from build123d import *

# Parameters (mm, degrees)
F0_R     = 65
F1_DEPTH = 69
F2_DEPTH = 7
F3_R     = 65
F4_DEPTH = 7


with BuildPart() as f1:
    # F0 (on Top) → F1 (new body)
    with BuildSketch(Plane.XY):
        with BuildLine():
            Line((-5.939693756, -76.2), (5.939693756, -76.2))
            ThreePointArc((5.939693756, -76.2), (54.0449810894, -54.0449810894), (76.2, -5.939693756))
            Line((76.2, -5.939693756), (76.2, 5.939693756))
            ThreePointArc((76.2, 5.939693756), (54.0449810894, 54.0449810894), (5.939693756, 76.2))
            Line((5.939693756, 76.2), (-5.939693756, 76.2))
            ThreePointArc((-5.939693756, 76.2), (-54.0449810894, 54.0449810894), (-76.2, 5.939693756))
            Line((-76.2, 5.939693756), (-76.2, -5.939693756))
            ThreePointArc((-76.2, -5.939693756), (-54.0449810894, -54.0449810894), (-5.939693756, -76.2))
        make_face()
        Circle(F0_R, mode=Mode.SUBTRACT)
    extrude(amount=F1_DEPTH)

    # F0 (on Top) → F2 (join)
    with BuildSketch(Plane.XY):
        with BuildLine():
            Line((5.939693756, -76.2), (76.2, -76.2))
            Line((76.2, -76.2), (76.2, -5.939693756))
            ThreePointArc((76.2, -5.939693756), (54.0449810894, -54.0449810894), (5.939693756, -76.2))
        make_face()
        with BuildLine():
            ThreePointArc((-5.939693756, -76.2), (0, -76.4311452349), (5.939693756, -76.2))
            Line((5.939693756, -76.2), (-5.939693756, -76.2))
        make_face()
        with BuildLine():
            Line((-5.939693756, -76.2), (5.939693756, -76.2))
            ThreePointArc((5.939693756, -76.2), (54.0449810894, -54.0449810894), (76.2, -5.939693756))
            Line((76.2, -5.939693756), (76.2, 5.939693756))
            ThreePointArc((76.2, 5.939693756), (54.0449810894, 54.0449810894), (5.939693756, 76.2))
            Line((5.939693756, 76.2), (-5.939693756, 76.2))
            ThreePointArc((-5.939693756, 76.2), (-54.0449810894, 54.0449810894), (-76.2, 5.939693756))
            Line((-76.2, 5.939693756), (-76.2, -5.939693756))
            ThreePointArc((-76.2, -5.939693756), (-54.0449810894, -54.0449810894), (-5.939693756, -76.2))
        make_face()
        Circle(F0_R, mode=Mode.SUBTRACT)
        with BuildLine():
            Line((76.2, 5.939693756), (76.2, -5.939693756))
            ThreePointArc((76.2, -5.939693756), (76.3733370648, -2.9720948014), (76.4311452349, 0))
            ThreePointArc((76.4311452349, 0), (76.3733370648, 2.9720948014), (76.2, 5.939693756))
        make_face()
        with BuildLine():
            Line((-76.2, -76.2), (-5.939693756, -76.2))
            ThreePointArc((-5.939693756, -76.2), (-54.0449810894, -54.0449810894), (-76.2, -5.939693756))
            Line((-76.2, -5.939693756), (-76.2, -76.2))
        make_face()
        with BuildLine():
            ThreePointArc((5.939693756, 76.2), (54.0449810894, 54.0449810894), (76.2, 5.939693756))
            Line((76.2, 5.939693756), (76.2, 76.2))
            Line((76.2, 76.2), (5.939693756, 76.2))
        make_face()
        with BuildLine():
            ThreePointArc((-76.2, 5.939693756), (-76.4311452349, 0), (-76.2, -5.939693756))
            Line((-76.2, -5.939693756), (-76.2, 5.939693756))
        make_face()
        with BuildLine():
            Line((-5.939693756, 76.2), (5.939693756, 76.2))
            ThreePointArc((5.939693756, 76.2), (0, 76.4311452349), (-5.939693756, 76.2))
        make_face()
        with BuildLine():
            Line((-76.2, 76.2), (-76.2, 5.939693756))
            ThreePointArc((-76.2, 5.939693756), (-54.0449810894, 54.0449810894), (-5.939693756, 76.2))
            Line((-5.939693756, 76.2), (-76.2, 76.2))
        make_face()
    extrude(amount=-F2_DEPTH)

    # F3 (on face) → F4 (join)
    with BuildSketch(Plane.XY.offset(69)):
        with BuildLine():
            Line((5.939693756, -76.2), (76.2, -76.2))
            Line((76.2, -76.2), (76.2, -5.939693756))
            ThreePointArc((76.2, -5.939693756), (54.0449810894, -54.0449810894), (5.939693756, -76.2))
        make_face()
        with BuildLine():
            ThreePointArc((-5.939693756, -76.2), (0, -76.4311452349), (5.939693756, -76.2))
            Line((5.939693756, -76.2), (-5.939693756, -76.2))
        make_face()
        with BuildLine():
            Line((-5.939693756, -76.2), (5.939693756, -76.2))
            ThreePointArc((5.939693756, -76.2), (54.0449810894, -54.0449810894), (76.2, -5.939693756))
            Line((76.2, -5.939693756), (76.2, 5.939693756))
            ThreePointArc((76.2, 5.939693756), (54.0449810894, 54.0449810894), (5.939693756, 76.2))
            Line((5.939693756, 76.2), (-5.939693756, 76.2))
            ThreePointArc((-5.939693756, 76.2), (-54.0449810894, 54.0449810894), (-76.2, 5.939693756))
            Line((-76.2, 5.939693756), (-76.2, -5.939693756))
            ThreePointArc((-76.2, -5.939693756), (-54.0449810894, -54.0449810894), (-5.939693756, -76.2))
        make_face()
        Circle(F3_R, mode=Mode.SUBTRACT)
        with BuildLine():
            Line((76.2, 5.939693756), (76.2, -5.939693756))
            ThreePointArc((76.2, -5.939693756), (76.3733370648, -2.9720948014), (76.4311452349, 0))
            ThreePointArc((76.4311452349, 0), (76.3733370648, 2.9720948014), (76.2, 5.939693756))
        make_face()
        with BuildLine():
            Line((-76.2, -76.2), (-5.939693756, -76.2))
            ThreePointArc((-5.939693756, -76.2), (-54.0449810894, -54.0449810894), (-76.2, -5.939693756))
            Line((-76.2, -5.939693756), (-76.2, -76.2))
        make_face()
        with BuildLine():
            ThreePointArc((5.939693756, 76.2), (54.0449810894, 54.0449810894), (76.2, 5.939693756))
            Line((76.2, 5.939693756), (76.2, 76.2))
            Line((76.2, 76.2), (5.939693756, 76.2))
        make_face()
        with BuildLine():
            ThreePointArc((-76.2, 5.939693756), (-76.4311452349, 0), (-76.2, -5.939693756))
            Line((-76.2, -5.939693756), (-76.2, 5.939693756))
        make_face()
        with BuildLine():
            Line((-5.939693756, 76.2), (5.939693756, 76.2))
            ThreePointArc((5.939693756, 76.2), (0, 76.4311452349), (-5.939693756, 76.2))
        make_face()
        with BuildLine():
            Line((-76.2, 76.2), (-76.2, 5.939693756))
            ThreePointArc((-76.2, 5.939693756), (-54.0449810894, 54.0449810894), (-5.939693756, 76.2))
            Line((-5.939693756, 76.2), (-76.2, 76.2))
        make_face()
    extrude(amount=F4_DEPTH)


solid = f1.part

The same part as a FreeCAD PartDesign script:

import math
import FreeCAD as App
import Part
import Sketcher

V = App.Vector
Q = App.Units.Quantity

doc = App.newDocument("Part")
params = doc.addObject("Spreadsheet::Sheet", "Params")
for row, (alias, value) in enumerate([
    ("sketch1_diameter", "130 mm"),
    ("pad1_length", "69 mm"),
    ("sketch2_diameter", "130 mm"),
    ("pad2_length", "7 mm"),
    ("sketch3_diameter", "130 mm"),
    ("pad3_length", "7 mm"),
], start=1):
    params.set(f"A{row}", alias)
    params.set(f"B{row}", "=" + value)
    params.setAlias(f"B{row}", alias)

body = doc.addObject("PartDesign::Body", "Body")

# Sketch on XY plane
sketch1 = body.newObject("Sketcher::SketchObject", "Sketch")
sketch1.AttachmentSupport = (doc.getObject("XY_Plane"), [""])
sketch1.MapMode = "FlatFace"
sketch1.addGeometry([
    Part.LineSegment(V(-6, -76, 0), V(6, -76, 0)),  # 0
    Part.ArcOfCircle(Part.Circle(V(0, 0, 0), V(0, 0, 1), 76), math.radians(-86), math.radians(-4)),  # 1
    Part.LineSegment(V(76, -6, 0), V(76, 6, 0)),  # 2
    Part.ArcOfCircle(Part.Circle(V(0, 0, 0), V(0, 0, 1), 76), math.radians(4), math.radians(86)),  # 3
    Part.LineSegment(V(6, 76, 0), V(-6, 76, 0)),  # 4
    Part.ArcOfCircle(Part.Circle(V(0, 0, 0), V(0, 0, 1), 76), math.radians(94), math.radians(176)),  # 5
    Part.LineSegment(V(-76, 6, 0), V(-76, -6, 0)),  # 6
    Part.ArcOfCircle(Part.Circle(V(0, 0, 0), V(0, 0, 1), 76), math.radians(-176), math.radians(-94)),  # 7
    Part.Circle(V(0, 0, 0), V(0, 0, 1), 65),  # 8
], False)
sketch1.addConstraint([
    Sketcher.Constraint("Coincident", 0, 2, 1, 1),
    Sketcher.Constraint("Coincident", 1, 2, 2, 1),
    Sketcher.Constraint("Coincident", 2, 2, 3, 1),
    Sketcher.Constraint("Coincident", 3, 2, 4, 1),
    Sketcher.Constraint("Coincident", 4, 2, 5, 1),
    Sketcher.Constraint("Coincident", 5, 2, 6, 1),
    Sketcher.Constraint("Coincident", 6, 2, 7, 1),
    Sketcher.Constraint("Coincident", 7, 2, 0, 1),
    Sketcher.Constraint("Horizontal", 0),
    Sketcher.Constraint("Vertical", 2),
    Sketcher.Constraint("Horizontal", 4),
    Sketcher.Constraint("Vertical", 6),
    Sketcher.Constraint("Coincident", 1, 3, -1, 1),
    Sketcher.Constraint("Coincident", 3, 3, -1, 1),
    Sketcher.Constraint("Coincident", 5, 3, -1, 1),
    Sketcher.Constraint("Coincident", 7, 3, -1, 1),
    Sketcher.Constraint("Coincident", 8, 3, -1, 1),
    Sketcher.Constraint("Equal", 1, 3),
    Sketcher.Constraint("Equal", 3, 5),
    Sketcher.Constraint("Equal", 5, 7),
    Sketcher.Constraint("Horizontal", 2, 2, 5, 2),
    Sketcher.Constraint("Vertical", 0, 2, 3, 2),
    Sketcher.Constraint("Equal", 4, 2),
    Sketcher.Constraint("Diameter", 8, Q("130 mm")),
    Sketcher.Constraint("DistanceY", 0, 2, -1, 1, Q("76.2 mm")),
    Sketcher.Constraint("Radius", 1, Q("76.431145 mm")),
])
sketch1.setExpression("Constraints[23]", "Params.sketch1_diameter")
pad1 = body.newObject("PartDesign::Pad", "Pad")
pad1.Profile = sketch1
pad1.setExpression("Length", "Params.pad1_length")

# Sketch on XY plane
sketch2 = body.newObject("Sketcher::SketchObject", "Sketch001")
sketch2.AttachmentSupport = (doc.getObject("XY_Plane"), [""])
sketch2.MapMode = "FlatFace"
sketch2.addGeometry([
    Part.LineSegment(V(6, -76, 0), V(76, -76, 0)),  # 0
    Part.LineSegment(V(76, -76, 0), V(76, -6, 0)),  # 1
    Part.ArcOfCircle(Part.Circle(V(0, 0, 0), V(0, 0, 1), 76), math.radians(-4.46), math.radians(0)),  # 2
    Part.ArcOfCircle(Part.Circle(V(0, 0, 0), V(0, 0, 1), 76), math.radians(0), math.radians(4.46)),  # 3
    Part.LineSegment(V(76, 6, 0), V(76, 76, 0)),  # 4
    Part.LineSegment(V(76, 76, 0), V(6, 76, 0)),  # 5
    Part.ArcOfCircle(Part.Circle(V(0, 0, 0), V(0, 0, 1), 76), math.radians(85.54), math.radians(94.46)),  # 6
    Part.LineSegment(V(-6, 76, 0), V(-76, 76, 0)),  # 7
    Part.LineSegment(V(-76, 76, 0), V(-76, 6, 0)),  # 8
    Part.ArcOfCircle(Part.Circle(V(0, 0, 0), V(0, 0, 1), 76), math.radians(175.54), math.radians(184.46)),  # 9
    Part.LineSegment(V(-76, -6, 0), V(-76, -76, 0)),  # 10
    Part.LineSegment(V(-76, -76, 0), V(-6, -76, 0)),  # 11
    Part.ArcOfCircle(Part.Circle(V(0, 0, 0), V(0, 0, 1), 76), math.radians(-94.46), math.radians(-85.54)),  # 12
    Part.Circle(V(0, 0, 0), V(0, 0, 1), 65),  # 13
], False)
sketch2.addConstraint([
    Sketcher.Constraint("Coincident", 0, 2, 1, 1),
    Sketcher.Constraint("Coincident", 1, 2, 2, 1),
    Sketcher.Constraint("Tangent", 2, 2, 3, 1),
    Sketcher.Constraint("Coincident", 3, 2, 4, 1),
    Sketcher.Constraint("Coincident", 4, 2, 5, 1),
    Sketcher.Constraint("Coincident", 5, 2, 6, 1),
    Sketcher.Constraint("Coincident", 6, 2, 7, 1),
    Sketcher.Constraint("Coincident", 7, 2, 8, 1),
    Sketcher.Constraint("Coincident", 8, 2, 9, 1),
    Sketcher.Constraint("Coincident", 9, 2, 10, 1),
    Sketcher.Constraint("Coincident", 10, 2, 11, 1),
    Sketcher.Constraint("Coincident", 11, 2, 12, 1),
    Sketcher.Constraint("Coincident", 12, 2, 0, 1),
    Sketcher.Constraint("Horizontal", 0),
    Sketcher.Constraint("Vertical", 1),
    Sketcher.Constraint("Vertical", 4),
    Sketcher.Constraint("Horizontal", 5),
    Sketcher.Constraint("Horizontal", 7),
    Sketcher.Constraint("Vertical", 8),
    Sketcher.Constraint("Vertical", 10),
    Sketcher.Constraint("Horizontal", 11),
    Sketcher.Constraint("Coincident", 2, 3, -1, 1),
    Sketcher.Constraint("Coincident", 6, 3, -1, 1),
    Sketcher.Constraint("Coincident", 9, 3, -1, 1),
    Sketcher.Constraint("Coincident", 12, 3, -1, 1),
    Sketcher.Constraint("Coincident", 13, 3, -1, 1),
    Sketcher.Constraint("Equal", 2, 3),
    Sketcher.Constraint("Equal", 3, 6),
    Sketcher.Constraint("Equal", 6, 9),
    Sketcher.Constraint("Equal", 9, 12),
    Sketcher.Constraint("Symmetric", 0, 2, 7, 2, -1, 1),
    Sketcher.Constraint("Symmetric", 4, 2, 10, 2, -1, 1),
    Sketcher.Constraint("Symmetric", 4, 2, 7, 2, -2),
    Sketcher.Constraint("PointOnObject", 2, 2, -1),
    Sketcher.Constraint("Equal", 11, 1),
    Sketcher.Constraint("Diameter", 13, Q("130 mm")),
    Sketcher.Constraint("DistanceX", -1, 1, 0, 2, Q("76.2 mm")),
    Sketcher.Constraint("Radius", 2, Q("76.431145 mm")),
])
sketch2.setExpression("Constraints[35]", "Params.sketch2_diameter")
pad2 = body.newObject("PartDesign::Pad", "Pad001")
pad2.Profile = sketch2
pad2.setExpression("Length", "Params.pad2_length")
pad2.Reversed = True

# Sketch on XY plane
sketch3 = body.newObject("Sketcher::SketchObject", "Sketch002")
sketch3.AttachmentSupport = (doc.getObject("XY_Plane"), [""])
sketch3.MapMode = "FlatFace"
sketch3.AttachmentOffset = App.Placement(V(0, 0, 69), App.Rotation())
sketch3.addGeometry([
    Part.LineSegment(V(6, -76, 0), V(76, -76, 0)),  # 0
    Part.LineSegment(V(76, -76, 0), V(76, -6, 0)),  # 1
    Part.ArcOfCircle(Part.Circle(V(0, 0, 0), V(0, 0, 1), 76), math.radians(-4.46), math.radians(0)),  # 2
    Part.ArcOfCircle(Part.Circle(V(0, 0, 0), V(0, 0, 1), 76), math.radians(0), math.radians(4.46)),  # 3
    Part.LineSegment(V(76, 6, 0), V(76, 76, 0)),  # 4
    Part.LineSegment(V(76, 76, 0), V(6, 76, 0)),  # 5
    Part.ArcOfCircle(Part.Circle(V(0, 0, 0), V(0, 0, 1), 76), math.radians(85.54), math.radians(94.46)),  # 6
    Part.LineSegment(V(-6, 76, 0), V(-76, 76, 0)),  # 7
    Part.LineSegment(V(-76, 76, 0), V(-76, 6, 0)),  # 8
    Part.ArcOfCircle(Part.Circle(V(0, 0, 0), V(0, 0, 1), 76), math.radians(175.54), math.radians(184.46)),  # 9
    Part.LineSegment(V(-76, -6, 0), V(-76, -76, 0)),  # 10
    Part.LineSegment(V(-76, -76, 0), V(-6, -76, 0)),  # 11
    Part.ArcOfCircle(Part.Circle(V(0, 0, 0), V(0, 0, 1), 76), math.radians(-94.46), math.radians(-85.54)),  # 12
    Part.Circle(V(0, 0, 0), V(0, 0, 1), 65),  # 13
], False)
sketch3.addConstraint([
    Sketcher.Constraint("Coincident", 0, 2, 1, 1),
    Sketcher.Constraint("Coincident", 1, 2, 2, 1),
    Sketcher.Constraint("Tangent", 2, 2, 3, 1),
    Sketcher.Constraint("Coincident", 3, 2, 4, 1),
    Sketcher.Constraint("Coincident", 4, 2, 5, 1),
    Sketcher.Constraint("Coincident", 5, 2, 6, 1),
    Sketcher.Constraint("Coincident", 6, 2, 7, 1),
    Sketcher.Constraint("Coincident", 7, 2, 8, 1),
    Sketcher.Constraint("Coincident", 8, 2, 9, 1),
    Sketcher.Constraint("Coincident", 9, 2, 10, 1),
    Sketcher.Constraint("Coincident", 10, 2, 11, 1),
    Sketcher.Constraint("Coincident", 11, 2, 12, 1),
    Sketcher.Constraint("Coincident", 12, 2, 0, 1),
    Sketcher.Constraint("Horizontal", 0),
    Sketcher.Constraint("Vertical", 1),
    Sketcher.Constraint("Vertical", 4),
    Sketcher.Constraint("Horizontal", 5),
    Sketcher.Constraint("Horizontal", 7),
    Sketcher.Constraint("Vertical", 8),
    Sketcher.Constraint("Vertical", 10),
    Sketcher.Constraint("Horizontal", 11),
    Sketcher.Constraint("Coincident", 2, 3, -1, 1),
    Sketcher.Constraint("Coincident", 6, 3, -1, 1),
    Sketcher.Constraint("Coincident", 9, 3, -1, 1),
    Sketcher.Constraint("Coincident", 12, 3, -1, 1),
    Sketcher.Constraint("Coincident", 13, 3, -1, 1),
    Sketcher.Constraint("Equal", 2, 3),
    Sketcher.Constraint("Equal", 3, 6),
    Sketcher.Constraint("Equal", 6, 9),
    Sketcher.Constraint("Equal", 9, 12),
    Sketcher.Constraint("Symmetric", 0, 2, 7, 2, -1, 1),
    Sketcher.Constraint("Symmetric", 4, 2, 10, 2, -1, 1),
    Sketcher.Constraint("Symmetric", 4, 2, 7, 2, -2),
    Sketcher.Constraint("PointOnObject", 2, 2, -1),
    Sketcher.Constraint("Equal", 11, 1),
    Sketcher.Constraint("Diameter", 13, Q("130 mm")),
    Sketcher.Constraint("DistanceX", -1, 1, 0, 2, Q("76.2 mm")),
    Sketcher.Constraint("Radius", 2, Q("76.431145 mm")),
])
sketch3.setExpression("Constraints[35]", "Params.sketch3_diameter")
pad3 = body.newObject("PartDesign::Pad", "Pad002")
pad3.Profile = sketch3
pad3.setExpression("Length", "Params.pad3_length")

doc.recompute()
